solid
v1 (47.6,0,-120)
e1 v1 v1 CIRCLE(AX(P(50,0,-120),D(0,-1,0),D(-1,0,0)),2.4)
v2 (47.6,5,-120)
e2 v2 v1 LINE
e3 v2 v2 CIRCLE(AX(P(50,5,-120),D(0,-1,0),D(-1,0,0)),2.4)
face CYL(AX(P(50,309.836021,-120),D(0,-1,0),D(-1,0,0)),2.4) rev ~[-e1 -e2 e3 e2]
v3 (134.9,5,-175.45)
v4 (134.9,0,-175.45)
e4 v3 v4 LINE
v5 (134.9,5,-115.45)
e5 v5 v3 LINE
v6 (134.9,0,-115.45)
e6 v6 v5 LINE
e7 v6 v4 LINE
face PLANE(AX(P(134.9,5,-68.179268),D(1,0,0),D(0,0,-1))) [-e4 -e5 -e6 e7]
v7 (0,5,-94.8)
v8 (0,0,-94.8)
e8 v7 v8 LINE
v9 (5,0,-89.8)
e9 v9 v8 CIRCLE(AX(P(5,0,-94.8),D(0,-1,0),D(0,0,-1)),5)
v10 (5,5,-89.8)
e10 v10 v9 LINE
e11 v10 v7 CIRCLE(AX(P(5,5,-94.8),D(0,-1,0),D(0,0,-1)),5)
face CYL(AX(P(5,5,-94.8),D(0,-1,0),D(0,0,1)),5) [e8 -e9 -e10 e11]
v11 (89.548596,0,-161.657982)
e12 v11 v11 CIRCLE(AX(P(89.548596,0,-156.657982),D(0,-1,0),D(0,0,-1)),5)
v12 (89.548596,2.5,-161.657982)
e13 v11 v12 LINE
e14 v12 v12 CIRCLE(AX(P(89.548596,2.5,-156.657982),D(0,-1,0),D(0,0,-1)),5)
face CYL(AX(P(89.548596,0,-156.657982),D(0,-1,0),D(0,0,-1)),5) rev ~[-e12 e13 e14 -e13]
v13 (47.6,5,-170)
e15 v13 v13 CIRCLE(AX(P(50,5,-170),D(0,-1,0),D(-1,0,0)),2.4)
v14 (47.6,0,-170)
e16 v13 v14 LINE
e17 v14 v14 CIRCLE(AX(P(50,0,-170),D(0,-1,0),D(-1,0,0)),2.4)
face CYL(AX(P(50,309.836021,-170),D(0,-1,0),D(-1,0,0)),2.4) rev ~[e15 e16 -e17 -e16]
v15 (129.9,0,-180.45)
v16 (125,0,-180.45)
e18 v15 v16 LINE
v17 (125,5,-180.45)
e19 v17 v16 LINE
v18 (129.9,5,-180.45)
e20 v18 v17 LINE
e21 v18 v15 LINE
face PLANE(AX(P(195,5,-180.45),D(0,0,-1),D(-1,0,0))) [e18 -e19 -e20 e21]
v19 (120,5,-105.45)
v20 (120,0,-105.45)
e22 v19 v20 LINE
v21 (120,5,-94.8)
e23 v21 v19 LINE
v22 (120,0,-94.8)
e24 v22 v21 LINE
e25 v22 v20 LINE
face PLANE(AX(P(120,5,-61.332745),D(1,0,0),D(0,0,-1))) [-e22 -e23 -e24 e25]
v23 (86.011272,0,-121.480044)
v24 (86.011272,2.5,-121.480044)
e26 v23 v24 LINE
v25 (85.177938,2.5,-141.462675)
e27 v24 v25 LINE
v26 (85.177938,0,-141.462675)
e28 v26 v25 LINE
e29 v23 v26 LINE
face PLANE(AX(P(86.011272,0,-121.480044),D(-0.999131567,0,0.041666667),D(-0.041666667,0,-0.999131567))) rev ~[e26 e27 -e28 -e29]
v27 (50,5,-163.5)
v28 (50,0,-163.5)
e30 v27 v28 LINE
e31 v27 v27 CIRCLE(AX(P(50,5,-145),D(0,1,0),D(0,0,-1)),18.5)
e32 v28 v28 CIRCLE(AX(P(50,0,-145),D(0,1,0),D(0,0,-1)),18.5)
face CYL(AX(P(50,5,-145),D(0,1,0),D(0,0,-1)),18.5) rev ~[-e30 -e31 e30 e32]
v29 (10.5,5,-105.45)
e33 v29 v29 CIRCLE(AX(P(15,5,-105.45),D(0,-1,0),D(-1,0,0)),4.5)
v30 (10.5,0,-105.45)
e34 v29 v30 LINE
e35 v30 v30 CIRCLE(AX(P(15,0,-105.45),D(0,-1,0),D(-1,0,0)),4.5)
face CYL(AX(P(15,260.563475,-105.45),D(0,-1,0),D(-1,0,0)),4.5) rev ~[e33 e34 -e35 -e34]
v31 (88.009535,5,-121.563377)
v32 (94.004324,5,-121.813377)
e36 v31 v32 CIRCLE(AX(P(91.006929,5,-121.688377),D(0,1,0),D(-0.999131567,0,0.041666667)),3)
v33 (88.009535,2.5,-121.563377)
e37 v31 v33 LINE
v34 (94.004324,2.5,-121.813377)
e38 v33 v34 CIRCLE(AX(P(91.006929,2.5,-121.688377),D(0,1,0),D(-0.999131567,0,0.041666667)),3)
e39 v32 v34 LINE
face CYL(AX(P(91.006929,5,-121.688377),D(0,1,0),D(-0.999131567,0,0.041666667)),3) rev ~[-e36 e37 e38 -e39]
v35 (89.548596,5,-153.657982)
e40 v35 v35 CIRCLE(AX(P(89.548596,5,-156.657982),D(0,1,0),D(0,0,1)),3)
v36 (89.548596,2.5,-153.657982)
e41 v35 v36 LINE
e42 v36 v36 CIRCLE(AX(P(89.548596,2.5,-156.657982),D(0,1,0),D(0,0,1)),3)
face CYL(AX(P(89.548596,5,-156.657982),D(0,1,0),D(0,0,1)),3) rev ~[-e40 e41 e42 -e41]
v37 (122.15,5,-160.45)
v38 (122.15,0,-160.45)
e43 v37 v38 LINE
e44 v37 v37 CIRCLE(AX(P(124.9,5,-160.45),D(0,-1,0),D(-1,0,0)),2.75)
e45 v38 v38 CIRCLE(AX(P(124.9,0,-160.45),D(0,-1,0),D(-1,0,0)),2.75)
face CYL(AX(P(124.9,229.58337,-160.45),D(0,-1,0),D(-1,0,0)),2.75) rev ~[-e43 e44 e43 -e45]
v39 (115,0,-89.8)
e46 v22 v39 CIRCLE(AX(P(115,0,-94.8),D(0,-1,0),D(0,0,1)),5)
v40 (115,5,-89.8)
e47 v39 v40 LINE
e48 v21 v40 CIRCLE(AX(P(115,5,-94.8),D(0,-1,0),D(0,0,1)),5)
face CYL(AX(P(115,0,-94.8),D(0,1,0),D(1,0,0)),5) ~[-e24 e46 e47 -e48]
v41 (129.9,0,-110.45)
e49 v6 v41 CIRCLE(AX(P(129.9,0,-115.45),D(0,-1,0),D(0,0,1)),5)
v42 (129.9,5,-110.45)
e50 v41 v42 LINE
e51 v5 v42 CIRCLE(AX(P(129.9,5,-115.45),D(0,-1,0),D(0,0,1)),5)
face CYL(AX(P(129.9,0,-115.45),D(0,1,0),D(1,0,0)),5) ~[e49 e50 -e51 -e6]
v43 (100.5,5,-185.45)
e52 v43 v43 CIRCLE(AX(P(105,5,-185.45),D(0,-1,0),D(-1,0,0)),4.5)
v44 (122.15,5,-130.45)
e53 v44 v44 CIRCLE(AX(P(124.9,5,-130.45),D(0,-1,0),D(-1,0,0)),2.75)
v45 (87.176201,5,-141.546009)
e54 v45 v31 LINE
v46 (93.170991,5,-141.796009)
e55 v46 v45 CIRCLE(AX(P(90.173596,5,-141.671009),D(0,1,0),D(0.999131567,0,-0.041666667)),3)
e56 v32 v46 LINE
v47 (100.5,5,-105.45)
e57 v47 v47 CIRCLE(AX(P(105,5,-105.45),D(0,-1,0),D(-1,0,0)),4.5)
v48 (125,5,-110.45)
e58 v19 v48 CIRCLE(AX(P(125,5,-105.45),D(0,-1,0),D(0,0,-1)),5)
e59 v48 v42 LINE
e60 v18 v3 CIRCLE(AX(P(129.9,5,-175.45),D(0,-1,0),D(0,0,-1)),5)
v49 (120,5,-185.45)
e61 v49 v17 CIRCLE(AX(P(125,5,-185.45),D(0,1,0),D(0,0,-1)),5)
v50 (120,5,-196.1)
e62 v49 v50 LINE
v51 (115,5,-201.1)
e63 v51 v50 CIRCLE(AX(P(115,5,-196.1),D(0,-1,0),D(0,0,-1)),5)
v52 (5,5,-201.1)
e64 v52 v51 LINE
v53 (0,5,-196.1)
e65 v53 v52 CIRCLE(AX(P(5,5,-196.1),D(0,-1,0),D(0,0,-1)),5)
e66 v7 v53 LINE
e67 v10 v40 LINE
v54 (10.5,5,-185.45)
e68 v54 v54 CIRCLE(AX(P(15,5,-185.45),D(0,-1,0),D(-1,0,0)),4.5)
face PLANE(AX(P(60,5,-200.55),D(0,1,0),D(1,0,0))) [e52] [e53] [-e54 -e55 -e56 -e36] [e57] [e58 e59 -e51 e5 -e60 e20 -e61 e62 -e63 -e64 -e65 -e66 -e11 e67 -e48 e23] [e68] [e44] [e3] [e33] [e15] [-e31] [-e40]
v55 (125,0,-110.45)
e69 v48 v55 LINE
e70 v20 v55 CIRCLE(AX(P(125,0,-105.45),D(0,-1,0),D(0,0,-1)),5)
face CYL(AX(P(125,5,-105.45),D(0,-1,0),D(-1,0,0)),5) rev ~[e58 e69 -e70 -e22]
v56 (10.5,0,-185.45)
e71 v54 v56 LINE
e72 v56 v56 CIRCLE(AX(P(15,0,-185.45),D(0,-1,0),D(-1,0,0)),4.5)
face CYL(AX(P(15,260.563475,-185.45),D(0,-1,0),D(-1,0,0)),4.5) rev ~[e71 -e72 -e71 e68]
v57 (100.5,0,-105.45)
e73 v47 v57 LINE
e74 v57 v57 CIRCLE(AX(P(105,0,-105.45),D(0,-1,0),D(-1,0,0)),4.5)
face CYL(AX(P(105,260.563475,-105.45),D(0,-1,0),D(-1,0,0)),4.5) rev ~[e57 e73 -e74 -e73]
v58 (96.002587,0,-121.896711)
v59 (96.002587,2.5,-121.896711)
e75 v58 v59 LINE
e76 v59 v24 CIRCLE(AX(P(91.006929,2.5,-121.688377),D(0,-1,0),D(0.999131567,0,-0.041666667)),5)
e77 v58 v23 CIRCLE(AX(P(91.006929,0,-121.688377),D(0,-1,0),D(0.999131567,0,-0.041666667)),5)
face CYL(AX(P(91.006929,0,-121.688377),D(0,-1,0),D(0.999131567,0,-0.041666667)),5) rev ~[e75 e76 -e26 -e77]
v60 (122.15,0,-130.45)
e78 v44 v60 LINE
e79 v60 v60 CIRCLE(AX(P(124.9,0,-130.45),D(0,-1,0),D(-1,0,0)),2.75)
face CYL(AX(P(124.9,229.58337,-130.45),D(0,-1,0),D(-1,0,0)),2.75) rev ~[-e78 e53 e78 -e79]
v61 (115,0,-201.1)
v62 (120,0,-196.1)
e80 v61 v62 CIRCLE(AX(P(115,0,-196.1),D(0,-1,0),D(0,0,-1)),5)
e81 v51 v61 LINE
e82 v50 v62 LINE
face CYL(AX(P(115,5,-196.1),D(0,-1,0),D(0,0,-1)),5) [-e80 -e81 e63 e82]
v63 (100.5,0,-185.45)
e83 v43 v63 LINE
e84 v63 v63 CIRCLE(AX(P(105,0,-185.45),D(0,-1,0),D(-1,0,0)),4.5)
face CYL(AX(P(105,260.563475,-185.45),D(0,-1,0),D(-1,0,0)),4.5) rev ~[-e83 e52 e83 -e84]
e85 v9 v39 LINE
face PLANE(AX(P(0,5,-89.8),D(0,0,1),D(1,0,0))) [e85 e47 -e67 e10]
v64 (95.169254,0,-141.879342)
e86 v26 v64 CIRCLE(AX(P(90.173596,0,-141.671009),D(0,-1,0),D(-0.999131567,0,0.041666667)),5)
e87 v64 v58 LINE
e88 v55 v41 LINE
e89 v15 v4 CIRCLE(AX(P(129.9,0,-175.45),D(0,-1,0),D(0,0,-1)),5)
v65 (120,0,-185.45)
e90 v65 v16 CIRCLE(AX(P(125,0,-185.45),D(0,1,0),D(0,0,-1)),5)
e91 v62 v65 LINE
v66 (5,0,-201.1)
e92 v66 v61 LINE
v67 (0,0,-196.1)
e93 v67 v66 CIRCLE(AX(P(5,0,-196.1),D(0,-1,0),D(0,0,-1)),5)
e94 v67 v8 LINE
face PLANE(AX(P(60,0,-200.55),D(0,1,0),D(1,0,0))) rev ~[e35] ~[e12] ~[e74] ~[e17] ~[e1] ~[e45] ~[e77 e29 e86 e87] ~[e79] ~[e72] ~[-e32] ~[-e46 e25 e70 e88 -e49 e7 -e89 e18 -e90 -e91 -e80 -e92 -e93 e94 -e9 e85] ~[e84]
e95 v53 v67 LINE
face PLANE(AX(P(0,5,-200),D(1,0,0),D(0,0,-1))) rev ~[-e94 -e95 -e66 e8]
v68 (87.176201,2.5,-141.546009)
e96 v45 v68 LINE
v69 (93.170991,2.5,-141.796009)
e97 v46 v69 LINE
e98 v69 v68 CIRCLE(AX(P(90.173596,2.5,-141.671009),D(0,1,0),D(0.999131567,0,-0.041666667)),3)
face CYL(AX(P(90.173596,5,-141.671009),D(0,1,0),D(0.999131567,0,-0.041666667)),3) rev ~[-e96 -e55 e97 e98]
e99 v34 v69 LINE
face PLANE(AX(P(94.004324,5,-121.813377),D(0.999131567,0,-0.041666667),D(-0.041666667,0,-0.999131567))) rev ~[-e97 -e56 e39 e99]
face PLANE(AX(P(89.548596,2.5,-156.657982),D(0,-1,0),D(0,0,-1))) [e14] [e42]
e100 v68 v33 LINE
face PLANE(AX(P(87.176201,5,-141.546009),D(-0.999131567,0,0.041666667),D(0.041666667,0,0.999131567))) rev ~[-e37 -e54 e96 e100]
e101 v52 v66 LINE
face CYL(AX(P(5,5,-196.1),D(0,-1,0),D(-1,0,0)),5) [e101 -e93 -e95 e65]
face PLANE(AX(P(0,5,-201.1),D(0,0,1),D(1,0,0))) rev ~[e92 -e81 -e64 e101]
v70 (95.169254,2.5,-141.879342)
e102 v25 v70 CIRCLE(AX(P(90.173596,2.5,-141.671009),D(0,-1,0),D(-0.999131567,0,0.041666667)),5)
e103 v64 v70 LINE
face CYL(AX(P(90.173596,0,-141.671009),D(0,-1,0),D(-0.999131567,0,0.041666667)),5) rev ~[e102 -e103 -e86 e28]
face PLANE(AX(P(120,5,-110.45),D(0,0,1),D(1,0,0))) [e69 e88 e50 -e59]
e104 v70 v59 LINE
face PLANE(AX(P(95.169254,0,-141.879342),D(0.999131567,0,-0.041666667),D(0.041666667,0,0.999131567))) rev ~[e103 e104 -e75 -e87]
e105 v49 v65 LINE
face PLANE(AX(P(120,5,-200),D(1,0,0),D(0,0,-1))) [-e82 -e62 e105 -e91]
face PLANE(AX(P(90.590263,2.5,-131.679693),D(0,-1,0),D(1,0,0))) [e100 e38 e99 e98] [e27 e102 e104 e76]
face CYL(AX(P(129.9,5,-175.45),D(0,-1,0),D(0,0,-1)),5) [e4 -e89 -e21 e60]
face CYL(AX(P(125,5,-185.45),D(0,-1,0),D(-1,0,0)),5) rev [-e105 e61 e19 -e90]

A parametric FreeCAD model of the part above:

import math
import FreeCAD as App
import Part
import Sketcher
Q = App.Units.Quantity


def edges_at(feature, points):
    """Names of the edges that pass closest to the given points."""
    edges = feature.Shape.Edges
    near = lambda p: min(range(len(edges)), key=lambda i: edges[i].distToShape(Part.Vertex(*p))[0])
    return sorted({f"Edge{near(p) + 1}" for p in points})

doc = App.newDocument("Part")
body = doc.addObject("PartDesign::Body", "Body")

# Sketch on XZ plane
sketch1 = body.newObject("Sketcher::SketchObject", "Sketch")
sketch1.AttachmentSupport = (doc.getObject("XZ_Plane"), [""])
sketch1.MapMode = "FlatFace"
sketch1.addGeometry(Part.LineSegment(App.Vector(0, -200, 0), App.Vector(0, 0, 0)), False)
sketch1.addGeometry(Part.LineSegment(App.Vector(0, 0, 0), App.Vector(230, 0, 0)), False)
sketch1.addGeometry(Part.LineSegment(App.Vector(230, 0, 0), App.Vector(230, -200, 0)), False)
sketch1.addGeometry(Part.LineSegment(App.Vector(230, -200, 0), App.Vector(0, -200, 0)), False)
sketch1.addConstraint(Sketcher.Constraint("Coincident", 0, 2, 1, 1))
sketch1.addConstraint(Sketcher.Constraint("Coincident", 1, 2, 2, 1))
sketch1.addConstraint(Sketcher.Constraint("Coincident", 2, 2, 3, 1))
sketch1.addConstraint(Sketcher.Constraint("Coincident", 3, 2, 0, 1))
sketch1.addConstraint(Sketcher.Constraint("Vertical", 0))
sketch1.addConstraint(Sketcher.Constraint("Horizontal", 1))
sketch1.addConstraint(Sketcher.Constraint("Vertical", 2))
sketch1.addConstraint(Sketcher.Constraint("Horizontal", 3))
sketch1.addConstraint(Sketcher.Constraint("Coincident", 0, 2, -1, 1))
sketch1.addConstraint(Sketcher.Constraint("DistanceX", 1, 1, 1, 2, Q("230 mm")))
sketch1.addConstraint(Sketcher.Constraint("DistanceY", 0, 1, 0, 2, Q("200 mm")))
pad1 = body.newObject("PartDesign::Pad", "Pad")
pad1.Profile = sketch1
pad1.Length = 5
pad1.Reversed = True

# Sketch on XZ plane
sketch2 = body.newObject("Sketcher::SketchObject", "Sketch001")
sketch2.AttachmentSupport = (doc.getObject("XZ_Plane"), [""])
sketch2.MapMode = "FlatFace"
sketch2.AttachmentOffset = App.Placement(App.Vector(0, 0, -5), App.Rotation())
sketch2.addGeometry(Part.Circle(App.Vector(50, -60, 0), App.Vector(0, 0, 1), 15), False)
sketch2.addGeometry(Part.Circle(App.Vector(168.7, -42.5, 0), App.Vector(0, 0, 1), 14), False)
sketch2.addGeometry(Part.Circle(App.Vector(169.9, -150, 0), App.Vector(0, 0, 1), 10), False)
sketch2.addGeometry(Part.Circle(App.Vector(50, -145, 0), App.Vector(0, 0, 1), 18.5), False)
sketch2.addGeometry(Part.Circle(App.Vector(89.5, -156.7, 0), App.Vector(0, 0, 1), 3), False)
sketch2.addGeometry(Part.LineSegment(App.Vector(98.5, -32.6, 0), App.Vector(104.4, -72.2, 0)), False)
sketch2.addGeometry(Part.ArcOfCircle(Part.Circle(App.Vector(102.4, -72.5, 0), App.Vector(0, 0, 1), 2), math.radians(-172), math.radians(8)), False)
sketch2.addGeometry(Part.LineSegment(App.Vector(100.4, -72.8, 0), App.Vector(94.6, -33.2, 0)), False)
sketch2.addGeometry(Part.ArcOfCircle(Part.Circle(App.Vector(96.5, -32.9, 0), App.Vector(0, 0, 1), 2), math.radians(8), math.radians(188)), False)
sketch2.addGeometry(Part.LineSegment(App.Vector(94, -121.8, 0), App.Vector(93.2, -141.8, 0)), False)
sketch2.addGeometry(Part.ArcOfCircle(Part.Circle(App.Vector(90.2, -141.7, 0), App.Vector(0, 0, 1), 3), math.radians(178), math.radians(358)), False)
sketch2.addGeometry(Part.LineSegment(App.Vector(87.2, -141.5, 0), App.Vector(88, -121.6, 0)), False)
sketch2.addGeometry(Part.ArcOfCircle(Part.Circle(App.Vector(91, -121.7, 0), App.Vector(0, 0, 1), 3), math.radians(-2), math.radians(178)), False)
sketch2.addConstraint(Sketcher.Constraint("Tangent", 5, 2, 6, 2))
sketch2.addConstraint(Sketcher.Constraint("Tangent", 6, 1, 7, 1))
sketch2.addConstraint(Sketcher.Constraint("Tangent", 7, 2, 8, 2))
sketch2.addConstraint(Sketcher.Constraint("Tangent", 8, 1, 5, 1))
sketch2.addConstraint(Sketcher.Constraint("Tangent", 9, 2, 10, 2))
sketch2.addConstraint(Sketcher.Constraint("Tangent", 10, 1, 11, 1))
sketch2.addConstraint(Sketcher.Constraint("Tangent", 11, 2, 12, 2))
sketch2.addConstraint(Sketcher.Constraint("Tangent", 12, 1, 9, 1))
sketch2.addConstraint(Sketcher.Constraint("Equal", 6, 8))
sketch2.addConstraint(Sketcher.Constraint("Equal", 4, 10))
sketch2.addConstraint(Sketcher.Constraint("Equal", 10, 12))
sketch2.addConstraint(Sketcher.Constraint("Vertical", 0, 3, 3, 3))
sketch2.addConstraint(Sketcher.Constraint("Diameter", 0, Q("30 mm")))
sketch2.addConstraint(Sketcher.Constraint("Diameter", 1, Q("28 mm")))
sketch2.addConstraint(Sketcher.Constraint("Diameter", 2, Q("20 mm")))
sketch2.addConstraint(Sketcher.Constraint("Diameter", 3, Q("37 mm")))
sketch2.addConstraint(Sketcher.Constraint("Diameter", 4, Q("6 mm")))
sketch2.addConstraint(Sketcher.Constraint("Radius", 6, Q("2 mm")))
sketch2.addConstraint(Sketcher.Constraint("Distance", 5, Q("40 mm")))
sketch2.addConstraint(Sketcher.Constraint("Distance", 9, Q("20 mm")))
sketch2.addConstraint(Sketcher.Constraint("DistanceX", -1, 1, 0, 3, Q("50 mm")))
sketch2.addConstraint(Sketcher.Constraint("DistanceY", 0, 3, -1, 1, Q("60 mm")))
sketch2.addConstraint(Sketcher.Constraint("DistanceY", 2, 3, -1, 1, Q("150 mm")))
sketch2.addConstraint(Sketcher.Constraint("DistanceY", 3, 3, -1, 1, Q("145 mm")))
sketch2.addConstraint(Sketcher.Constraint("DistanceY", 1, 3, -1, 1, Q("42.5 mm")))
sketch2.addConstraint(Sketcher.Constraint("DistanceY", 9, 2, 10, 1, Q("0.25 mm")))
sketch2.addConstraint(Sketcher.Constraint("DistanceX", 4, 3, 10, 3, Q("0.625 mm")))
sketch2.addConstraint(Sketcher.Constraint("DistanceX", -1, 1, 1, 3, Q("168.717101 mm")))
sketch2.addConstraint(Sketcher.Constraint("DistanceX", -1, 1, 10, 1, Q("87.176201 mm")))
sketch2.addConstraint(Sketcher.Constraint("DistanceY", 5, 2, 8, 3, Q("39.2807 mm")))
sketch2.addConstraint(Sketcher.Constraint("DistanceX", -1, 1, 2, 3, Q("169.895788 mm")))
sketch2.addConstraint(Sketcher.Constraint("DistanceX", -1, 1, 8, 3, Q("96.548792 mm")))
sketch2.addConstraint(Sketcher.Constraint("DistanceY", 8, 3, -1, 1, Q("32.92215 mm")))
sketch2.addConstraint(Sketcher.Constraint("DistanceY", 10, 3, -1, 1, Q("141.671009 mm")))
sketch2.addConstraint(Sketcher.Constraint("DistanceY", 4, 3, -1, 1, Q("156.657982 mm")))
pocket1 = body.newObject("PartDesign::Pocket", "Pocket")
pocket1.Profile = sketch2
pocket1.Type = "ThroughAll"
pocket1.Reversed = True

# Sketch on XZ plane
sketch3 = body.newObject("Sketcher::SketchObject", "Sketch002")
sketch3.AttachmentSupport = (doc.getObject("XZ_Plane"), [""])
sketch3.MapMode = "FlatFace"
sketch3.AttachmentOffset = App.Placement(App.Vector(0, 0, -5), App.Rotation())
sketch3.addGeometry(Part.Circle(App.Vector(50, -120, 0), App.Vector(0, 0, 1), 2.4), False)
sketch3.addGeometry(Part.Circle(App.Vector(50, -32.5, 0), App.Vector(0, 0, 1), 2.4), False)
sketch3.addGeometry(Part.Circle(App.Vector(168.7, -61, 0), App.Vector(0, 0, 1), 2.4), False)
sketch3.addGeometry(Part.Circle(App.Vector(168.7, -24, 0), App.Vector(0, 0, 1), 2.4), False)
sketch3.addGeometry(Part.Circle(App.Vector(187.2, -42.5, 0), App.Vector(0, 0, 1), 2.4), False)
sketch3.addGeometry(Part.Circle(App.Vector(150.2, -42.5, 0), App.Vector(0, 0, 1), 2.4), False)
sketch3.addGeometry(Part.Circle(App.Vector(50, -170, 0), App.Vector(0, 0, 1), 2.4), False)
sketch3.addConstraint(Sketcher.Constraint("Equal", 0, 1))
sketch3.addConstraint(Sketcher.Constraint("Equal", 1, 2))
sketch3.addConstraint(Sketcher.Constraint("Equal", 2, 3))
sketch3.addConstraint(Sketcher.Constraint("Equal", 3, 4))
sketch3.addConstraint(Sketcher.Constraint("Equal", 4, 5))
sketch3.addConstraint(Sketcher.Constraint("Equal", 5, 6))
sketch3.addConstraint(Sketcher.Constraint("Horizontal", 4, 3, 5, 3))
sketch3.addConstraint(Sketcher.Constraint("Vertical", 0, 3, 1, 3))
sketch3.addConstraint(Sketcher.Constraint("Vertical", 2, 3, 3, 3))
sketch3.addConstraint(Sketcher.Constraint("Vertical", 1, 3, 6, 3))
sketch3.addConstraint(Sketcher.Constraint("Diameter", 0, Q("4.8 mm")))
sketch3.addConstraint(Sketcher.Constraint("DistanceX", -1, 1, 0, 3, Q("50 mm")))
sketch3.addConstraint(Sketcher.Constraint("DistanceY", 0, 3, -1, 1, Q("120 mm")))
sketch3.addConstraint(Sketcher.Constraint("DistanceY", 2, 3, -1, 1, Q("61 mm")))
sketch3.addConstraint(Sketcher.Constraint("DistanceY", 3, 3, -1, 1, Q("24 mm")))
sketch3.addConstraint(Sketcher.Constraint("DistanceY", 6, 3, -1, 1, Q("170 mm")))
sketch3.addConstraint(Sketcher.Constraint("DistanceY", 4, 3, 1, 3, Q("10 mm")))
sketch3.addConstraint(Sketcher.Constraint("DistanceX", 5, 3, 4, 3, Q("37 mm")))
sketch3.addConstraint(Sketcher.Constraint("DistanceY", 1, 3, -1, 1, Q("32.5 mm")))
sketch3.addConstraint(Sketcher.Constraint("DistanceX", 2, 3, 4, 3, Q("18.5 mm")))
sketch3.addConstraint(Sketcher.Constraint("DistanceX", -1, 1, 2, 3, Q("168.717101 mm")))
doc.recompute()
hole = body.newObject("PartDesign::Hole", "Hole")
hole.Profile = sketch3
hole.ThreadType = "None"
hole.Diameter = 4.8
hole.DepthType = "ThroughAll"
hole.Reversed = True

# Sketch on XZ plane
sketch4 = body.newObject("Sketcher::SketchObject", "Sketch003")
sketch4.AttachmentSupport = (doc.getObject("XZ_Plane"), [""])
sketch4.MapMode = "FlatFace"
sketch4.AttachmentOffset = App.Placement(App.Vector(0, 0, -5), App.Rotation())
sketch4.addGeometry(Part.LineSegment(App.Vector(20, -10, 0), App.Vector(20, -5, 0)), False)
sketch4.addGeometry(Part.LineSegment(App.Vector(20, -5, 0), App.Vector(40, -5, 0)), False)
sketch4.addGeometry(Part.LineSegment(App.Vector(40, -5, 0), App.Vector(40, -10, 0)), False)
sketch4.addGeometry(Part.LineSegment(App.Vector(40, -10, 0), App.Vector(20, -10, 0)), False)
sketch4.addGeometry(Part.LineSegment(App.Vector(60, -10, 0), App.Vector(60, -5, 0)), False)
sketch4.addGeometry(Part.LineSegment(App.Vector(60, -5, 0), App.Vector(80, -5, 0)), False)
sketch4.addGeometry(Part.LineSegment(App.Vector(80, -5, 0), App.Vector(80, -10, 0)), False)
sketch4.addGeometry(Part.LineSegment(App.Vector(80, -10, 0), App.Vector(60, -10, 0)), False)
sketch4.addGeometry(Part.LineSegment(App.Vector(100, -10, 0), App.Vector(100, -5, 0)), False)
sketch4.addGeometry(Part.LineSegment(App.Vector(100, -5, 0), App.Vector(120, -5, 0)), False)
sketch4.addGeometry(Part.LineSegment(App.Vector(120, -5, 0), App.Vector(120, -10, 0)), False)
sketch4.addGeometry(Part.LineSegment(App.Vector(120, -10, 0), App.Vector(100, -10, 0)), False)
sketch4.addGeometry(Part.LineSegment(App.Vector(140, -10, 0), App.Vector(140, -5, 0)), False)
sketch4.addGeometry(Part.LineSegment(App.Vector(140, -5, 0), App.Vector(160, -5, 0)), False)
sketch4.addGeometry(Part.LineSegment(App.Vector(160, -5, 0), App.Vector(160, -10, 0)), False)
sketch4.addGeometry(Part.LineSegment(App.Vector(160, -10, 0), App.Vector(140, -10, 0)), False)
sketch4.addGeometry(Part.LineSegment(App.Vector(180, -10, 0), App.Vector(180, -5, 0)), False)
sketch4.addGeometry(Part.LineSegment(App.Vector(180, -5, 0), App.Vector(200, -5, 0)), False)
sketch4.addGeometry(Part.LineSegment(App.Vector(200, -5, 0), App.Vector(200, -10, 0)), False)
sketch4.addGeometry(Part.LineSegment(App.Vector(200, -10, 0), App.Vector(180, -10, 0)), False)
sketch4.addConstraint(Sketcher.Constraint("Coincident", 0, 2, 1, 1))
sketch4.addConstraint(Sketcher.Constraint("Coincident", 1, 2, 2, 1))
sketch4.addConstraint(Sketcher.Constraint("Coincident", 2, 2, 3, 1))
sketch4.addConstraint(Sketcher.Constraint("Coincident", 3, 2, 0, 1))
sketch4.addConstraint(Sketcher.Constraint("Coincident", 4, 2, 5, 1))
sketch4.addConstraint(Sketcher.Constraint("Coincident", 5, 2, 6, 1))
sketch4.addConstraint(Sketcher.Constraint("Coincident", 6, 2, 7, 1))
sketch4.addConstraint(Sketcher.Constraint("Coincident", 7, 2, 4, 1))
sketch4.addConstraint(Sketcher.Constraint("Coincident", 8, 2, 9, 1))
sketch4.addConstraint(Sketcher.Constraint("Coincident", 9, 2, 10, 1))
sketch4.addConstraint(Sketcher.Constraint("Coincident", 10, 2, 11, 1))
sketch4.addConstraint(Sketcher.Constraint("Coincident", 11, 2, 8, 1))
sketch4.addConstraint(Sketcher.Constraint("Coincident", 12, 2, 13, 1))
sketch4.addConstraint(Sketcher.Constraint("Coincident", 13, 2, 14, 1))
sketch4.addConstraint(Sketcher.Constraint("Coincident", 14, 2, 15, 1))
sketch4.addConstraint(Sketcher.Constraint("Coincident", 15, 2, 12, 1))
sketch4.addConstraint(Sketcher.Constraint("Coincident", 16, 2, 17, 1))
sketch4.addConstraint(Sketcher.Constraint("Coincident", 17, 2, 18, 1))
sketch4.addConstraint(Sketcher.Constraint("Coincident", 18, 2, 19, 1))
sketch4.addConstraint(Sketcher.Constraint("Coincident", 19, 2, 16, 1))
sketch4.addConstraint(Sketcher.Constraint("Vertical", 0))
sketch4.addConstraint(Sketcher.Constraint("Horizontal", 1))
sketch4.addConstraint(Sketcher.Constraint("Vertical", 2))
sketch4.addConstraint(Sketcher.Constraint("Horizontal", 3))
sketch4.addConstraint(Sketcher.Constraint("Vertical", 4))
sketch4.addConstraint(Sketcher.Constraint("Horizontal", 5))
sketch4.addConstraint(Sketcher.Constraint("Vertical", 6))
sketch4.addConstraint(Sketcher.Constraint("Horizontal", 7))
sketch4.addConstraint(Sketcher.Constraint("Vertical", 8))
sketch4.addConstraint(Sketcher.Constraint("Horizontal", 9))
sketch4.addConstraint(Sketcher.Constraint("Vertical", 10))
sketch4.addConstraint(Sketcher.Constraint("Horizontal", 11))
sketch4.addConstraint(Sketcher.Constraint("Vertical", 12))
sketch4.addConstraint(Sketcher.Constraint("Horizontal", 13))
sketch4.addConstraint(Sketcher.Constraint("Vertical", 14))
sketch4.addConstraint(Sketcher.Constraint("Horizontal", 15))
sketch4.addConstraint(Sketcher.Constraint("Vertical", 16))
sketch4.addConstraint(Sketcher.Constraint("Horizontal", 17))
sketch4.addConstraint(Sketcher.Constraint("Vertical", 18))
sketch4.addConstraint(Sketcher.Constraint("Horizontal", 19))
sketch4.addConstraint(Sketcher.Constraint("Horizontal", 1, 2, 4, 2))
sketch4.addConstraint(Sketcher.Constraint("Horizontal", 3, 2, 6, 2))
sketch4.addConstraint(Sketcher.Constraint("Horizontal", 5, 2, 8, 2))
sketch4.addConstraint(Sketcher.Constraint("Horizontal", 7, 2, 10, 2))
sketch4.addConstraint(Sketcher.Constraint("Horizontal", 9, 2, 12, 2))
sketch4.addConstraint(Sketcher.Constraint("Horizontal", 11, 2, 14, 2))
sketch4.addConstraint(Sketcher.Constraint("Horizontal", 13, 2, 16, 2))
sketch4.addConstraint(Sketcher.Constraint("Horizontal", 15, 2, 18, 2))
sketch4.addConstraint(Sketcher.Constraint("Equal", 3, 5))
sketch4.addConstraint(Sketcher.Constraint("Equal", 7, 9))
sketch4.addConstraint(Sketcher.Constraint("Equal", 11, 13))
sketch4.addConstraint(Sketcher.Constraint("Equal", 15, 17))
sketch4.addConstraint(Sketcher.Constraint("DistanceX", 1, 1, 1, 2, Q("20 mm")))
sketch4.addConstraint(Sketcher.Constraint("DistanceY", 0, 1, 0, 2, Q("5 mm")))
sketch4.addConstraint(Sketcher.Constraint("DistanceX", -1, 1, 0, 2, Q("20 mm")))
sketch4.addConstraint(Sketcher.Constraint("DistanceY", 0, 2, -1, 1, Q("5 mm")))
sketch4.addConstraint(Sketcher.Constraint("DistanceX", -1, 1, 4, 2, Q("60 mm")))
sketch4.addConstraint(Sketcher.Constraint("DistanceX", -1, 1, 8, 2, Q("100 mm")))
sketch4.addConstraint(Sketcher.Constraint("DistanceX", -1, 1, 12, 2, Q("140 mm")))
sketch4.addConstraint(Sketcher.Constraint("DistanceX", -1, 1, 16, 2, Q("180 mm")))
pocket2 = body.newObject("PartDesign::Pocket", "Pocket001")
pocket2.Profile = sketch4
pocket2.Type = "ThroughAll"
pocket2.Reversed = True

# Sketch on XZ plane
sketch5 = body.newObject("Sketcher::SketchObject", "Sketch004")
sketch5.AttachmentSupport = (doc.getObject("XZ_Plane"), [""])
sketch5.MapMode = "FlatFace"
sketch5.AttachmentOffset = App.Placement(App.Vector(0, 0, -5), App.Rotation())
sketch5.addGeometry(Part.LineSegment(App.Vector(0, -90, 0), App.Vector(0, 0, 0)), False)
sketch5.addGeometry(Part.LineSegment(App.Vector(0, 0, 0), App.Vector(230, 0, 0)), False)
sketch5.addGeometry(Part.LineSegment(App.Vector(230, 0, 0), App.Vector(230, -90, 0)), False)
sketch5.addGeometry(Part.LineSegment(App.Vector(230, -90, 0), App.Vector(0, -90, 0)), False)
sketch5.addConstraint(Sketcher.Constraint("Coincident", 0, 2, 1, 1))
sketch5.addConstraint(Sketcher.Constraint("Coincident", 1, 2, 2, 1))
sketch5.addConstraint(Sketcher.Constraint("Coincident", 2, 2, 3, 1))
sketch5.addConstraint(Sketcher.Constraint("Coincident", 3, 2, 0, 1))
sketch5.addConstraint(Sketcher.Constraint("Vertical", 0))
sketch5.addConstraint(Sketcher.Constraint("Horizontal", 1))
sketch5.addConstraint(Sketcher.Constraint("Vertical", 2))
sketch5.addConstraint(Sketcher.Constraint("Horizontal", 3))
sketch5.addConstraint(Sketcher.Constraint("Coincident", 0, 2, -1, 1))
sketch5.addConstraint(Sketcher.Constraint("DistanceX", 1, 1, 1, 2, Q("230 mm")))
sketch5.addConstraint(Sketcher.Constraint("DistanceY", 0, 1, 0, 2, Q("89.8 mm")))
pocket3 = body.newObject("PartDesign::Pocket", "Pocket002")
pocket3.Profile = sketch5
pocket3.Type = "ThroughAll"
pocket3.Reversed = True

# Sketch on XZ plane
sketch6 = body.newObject("Sketcher::SketchObject", "Sketch005")
sketch6.AttachmentSupport = (doc.getObject("XZ_Plane"), [""])
sketch6.MapMode = "FlatFace"
sketch6.AttachmentOffset = App.Placement(App.Vector(0, 0, -5), App.Rotation())
sketch6.addGeometry(Part.LineSegment(App.Vector(0, -201.1, 0), App.Vector(0, -200, 0)), False)
sketch6.addGeometry(Part.LineSegment(App.Vector(0, -200, 0), App.Vector(120, -200, 0)), False)
sketch6.addGeometry(Part.LineSegment(App.Vector(120, -200, 0), App.Vector(120, -201.1, 0)), False)
sketch6.addGeometry(Part.LineSegment(App.Vector(120, -201.1, 0), App.Vector(0, -201.1, 0)), False)
sketch6.addConstraint(Sketcher.Constraint("Coincident", 0, 2, 1, 1))
sketch6.addConstraint(Sketcher.Constraint("Coincident", 1, 2, 2, 1))
sketch6.addConstraint(Sketcher.Constraint("Coincident", 2, 2, 3, 1))
sketch6.addConstraint(Sketcher.Constraint("Coincident", 3, 2, 0, 1))
sketch6.addConstraint(Sketcher.Constraint("Vertical", 0))
sketch6.addConstraint(Sketcher.Constraint("Horizontal", 1))
sketch6.addConstraint(Sketcher.Constraint("Vertical", 2))
sketch6.addConstraint(Sketcher.Constraint("Horizontal", 3))
sketch6.addConstraint(Sketcher.Constraint("PointOnObject", 0, 2, -2))
sketch6.addConstraint(Sketcher.Constraint("DistanceX", 1, 1, 1, 2, Q("120 mm")))
sketch6.addConstraint(Sketcher.Constraint("DistanceY", 0, 1, 0, 2, Q("1.1 mm")))
sketch6.addConstraint(Sketcher.Constraint("DistanceY", 0, 2, -1, 1, Q("200 mm")))
pad2 = body.newObject("PartDesign::Pad", "Pad001")
pad2.Profile = sketch6
pad2.Length = 5

# Sketch on XZ plane
sketch7 = body.newObject("Sketcher::SketchObject", "Sketch006")
sketch7.AttachmentSupport = (doc.getObject("XZ_Plane"), [""])
sketch7.MapMode = "FlatFace"
sketch7.AttachmentOffset = App.Placement(App.Vector(0, 0, -5), App.Rotation())
sketch7.addGeometry(Part.Circle(App.Vector(15, -185.4, 0), App.Vector(0, 0, 1), 4.5), False)
sketch7.addGeometry(Part.Circle(App.Vector(15, -105.5, 0), App.Vector(0, 0, 1), 4.5), False)
sketch7.addGeometry(Part.Circle(App.Vector(105, -105.5, 0), App.Vector(0, 0, 1), 4.5), False)
sketch7.addGeometry(Part.Circle(App.Vector(105, -185.4, 0), App.Vector(0, 0, 1), 4.5), False)
sketch7.addConstraint(Sketcher.Constraint("Equal", 0, 1))
sketch7.addConstraint(Sketcher.Constraint("Equal", 1, 2))
sketch7.addConstraint(Sketcher.Constraint("Equal", 2, 3))
sketch7.addConstraint(Sketcher.Constraint("Horizontal", 1, 3, 2, 3))
sketch7.addConstraint(Sketcher.Constraint("Horizontal", 0, 3, 3, 3))
sketch7.addConstraint(Sketcher.Constraint("Vertical", 0, 3, 1, 3))
sketch7.addConstraint(Sketcher.Constraint("Vertical", 2, 3, 3, 3))
sketch7.addConstraint(Sketcher.Constraint("Diameter", 0, Q("9 mm")))
sketch7.addConstraint(Sketcher.Constraint("DistanceX", -1, 1, 0, 3, Q("15 mm")))
sketch7.addConstraint(Sketcher.Constraint("DistanceX", -1, 1, 2, 3, Q("105 mm")))
sketch7.addConstraint(Sketcher.Constraint("DistanceY", 0, 3, 1, 3, Q("80 mm")))
sketch7.addConstraint(Sketcher.Constraint("DistanceY", 0, 3, -1, 1, Q("185.45 mm")))
doc.recompute()
hole2 = body.newObject("PartDesign::Hole", "Hole001")
hole2.Profile = sketch7
hole2.ThreadType = "None"
hole2.Diameter = 9
hole2.DepthType = "ThroughAll"
hole2.Reversed = True

# Sketch on XZ plane
sketch8 = body.newObject("Sketcher::SketchObject", "Sketch007")
sketch8.AttachmentSupport = (doc.getObject("XZ_Plane"), [""])
sketch8.MapMode = "FlatFace"
sketch8.AttachmentOffset = App.Placement(App.Vector(0, 0, -5), App.Rotation())
sketch8.addGeometry(Part.LineSegment(App.Vector(254, -226, 0), App.Vector(120, -226, 0)), False)
sketch8.addGeometry(Part.LineSegment(App.Vector(120, -226, 0), App.Vector(120, -180, 0)), False)
sketch8.addGeometry(Part.LineSegment(App.Vector(120, -180, 0), App.Vector(195, -180, 0)), False)
sketch8.addGeometry(Part.LineSegment(App.Vector(195, -180, 0), App.Vector(195, -110, 0)), False)
sketch8.addGeometry(Part.LineSegment(App.Vector(195, -110, 0), App.Vector(120, -110, 0)), False)
sketch8.addGeometry(Part.LineSegment(App.Vector(120, -110, 0), App.Vector(120, -61, 0)), False)
sketch8.addGeometry(Part.LineSegment(App.Vector(120, -61, 0), App.Vector(254, -61, 0)), False)
sketch8.addGeometry(Part.LineSegment(App.Vector(254, -61, 0), App.Vector(254, -226, 0)), False)
sketch8.addConstraint(Sketcher.Constraint("Coincident", 0, 2, 1, 1))
sketch8.addConstraint(Sketcher.Constraint("Coincident", 1, 2, 2, 1))
sketch8.addConstraint(Sketcher.Constraint("Coincident", 2, 2, 3, 1))
sketch8.addConstraint(Sketcher.Constraint("Coincident", 3, 2, 4, 1))
sketch8.addConstraint(Sketcher.Constraint("Coincident", 4, 2, 5, 1))
sketch8.addConstraint(Sketcher.Constraint("Coincident", 5, 2, 6, 1))
sketch8.addConstraint(Sketcher.Constraint("Coincident", 6, 2, 7, 1))
sketch8.addConstraint(Sketcher.Constraint("Coincident", 7, 2, 0, 1))
sketch8.addConstraint(Sketcher.Constraint("Horizontal", 0))
sketch8.addConstraint(Sketcher.Constraint("Vertical", 1))
sketch8.addConstraint(Sketcher.Constraint("Horizontal", 2))
sketch8.addConstraint(Sketcher.Constraint("Vertical", 3))
sketch8.addConstraint(Sketcher.Constraint("Horizontal", 4))
sketch8.addConstraint(Sketcher.Constraint("Vertical", 5))
sketch8.addConstraint(Sketcher.Constraint("Horizontal", 6))
sketch8.addConstraint(Sketcher.Constraint("Vertical", 7))
sketch8.addConstraint(Sketcher.Constraint("Vertical", 1, 2, 4, 2))
sketch8.addConstraint(Sketcher.Constraint("DistanceX", 2, 1, 2, 2, Q("75 mm")))
sketch8.addConstraint(Sketcher.Constraint("DistanceY", 3, 1, 3, 2, Q("70 mm")))
sketch8.addConstraint(Sketcher.Constraint("DistanceX", -1, 1, 0, 2, Q("120 mm")))
sketch8.addConstraint(Sketcher.Constraint("DistanceY", 1, 2, -1, 1, Q("180.45 mm")))
sketch8.addConstraint(Sketcher.Constraint("DistanceX", 0, 2, 0, 1, Q("134.21162 mm")))
sketch8.addConstraint(Sketcher.Constraint("DistanceY", 7, 2, 7, 1, Q("164.590829 mm")))
sketch8.addConstraint(Sketcher.Constraint("DistanceY", 1, 1, 1, 2, Q("45.473574 mm")))
pocket4 = body.newObject("PartDesign::Pocket", "Pocket003")
pocket4.Profile = sketch8
pocket4.Type = "ThroughAll"
pocket4.Reversed = True

# Sketch on XZ plane
sketch9 = body.newObject("Sketcher::SketchObject", "Sketch008")
sketch9.AttachmentSupport = (doc.getObject("XZ_Plane"), [""])
sketch9.MapMode = "FlatFace"
sketch9.AttachmentOffset = App.Placement(App.Vector(0, 0, -5), App.Rotation())
sketch9.addGeometry(Part.Circle(App.Vector(124.9, -160.4, 0), App.Vector(0, 0, 1), 2.8), False)
sketch9.addGeometry(Part.Circle(App.Vector(124.9, -130.4, 0), App.Vector(0, 0, 1), 2.8), False)
sketch9.addConstraint(Sketcher.Constraint("Equal", 0, 1))
sketch9.addConstraint(Sketcher.Constraint("Vertical", 0, 3, 1, 3))
sketch9.addConstraint(Sketcher.Constraint("Diameter", 0, Q("5.5 mm")))
sketch9.addConstraint(Sketcher.Constraint("DistanceY", 0, 3, 1, 3, Q("30 mm")))
sketch9.addConstraint(Sketcher.Constraint("DistanceX", -1, 1, 0, 3, Q("124.9 mm")))
sketch9.addConstraint(Sketcher.Constraint("DistanceY", 0, 3, -1, 1, Q("160.45 mm")))
doc.recompute()
hole3 = body.newObject("PartDesign::Hole", "Hole002")
hole3.Profile = sketch9
hole3.ThreadType = "None"
hole3.Diameter = 5.5
hole3.DepthType = "ThroughAll"
hole3.Reversed = True
doc.recompute()

fillet = body.newObject("PartDesign::Fillet", "Fillet")
fillet.Base = (hole3, edges_at(hole3, [(195, 2.5, -110.45), (195, 2.5, -180.45)]))
fillet.Radius = 30

# Sketch on XZ plane
sketch10 = body.newObject("Sketcher::SketchObject", "Sketch009")
sketch10.AttachmentSupport = (doc.getObject("XZ_Plane"), [""])
sketch10.MapMode = "FlatFace"
sketch10.AttachmentOffset = App.Placement(App.Vector(0, 0, -5), App.Rotation())
sketch10.addGeometry(Part.LineSegment(App.Vector(135, -220, 0), App.Vector(135, -68, 0)), False)
sketch10.addGeometry(Part.LineSegment(App.Vector(135, -68, 0), App.Vector(233, -68, 0)), False)
sketch10.addGeometry(Part.LineSegment(App.Vector(233, -68, 0), App.Vector(233, -220, 0)), False)
sketch10.addGeometry(Part.LineSegment(App.Vector(233, -220, 0), App.Vector(135, -220, 0)), False)
sketch10.addConstraint(Sketcher.Constraint("Coincident", 0, 2, 1, 1))
sketch10.addConstraint(Sketcher.Constraint("Coincident", 1, 2, 2, 1))
sketch10.addConstraint(Sketcher.Constraint("Coincident", 2, 2, 3, 1))
sketch10.addConstraint(Sketcher.Constraint("Coincident", 3, 2, 0, 1))
sketch10.addConstraint(Sketcher.Constraint("Vertical", 0))
sketch10.addConstraint(Sketcher.Constraint("Horizontal", 1))
sketch10.addConstraint(Sketcher.Constraint("Vertical", 2))
sketch10.addConstraint(Sketcher.Constraint("Horizontal", 3))
sketch10.addConstraint(Sketcher.Constraint("DistanceX", -1, 1, 0, 2, Q("134.9 mm")))
sketch10.addConstraint(Sketcher.Constraint("DistanceX", 1, 1, 1, 2, Q("97.742743 mm")))
sketch10.addConstraint(Sketcher.Constraint("DistanceY", 0, 1, 0, 2, Q("151.745417 mm")))
sketch10.addConstraint(Sketcher.Constraint("DistanceY", 0, 2, -1, 1, Q("68.179268 mm")))
pocket5 = body.newObject("PartDesign::Pocket", "Pocket004")
pocket5.Profile = sketch10
pocket5.Type = "ThroughAll"
pocket5.Reversed = True

# Sketch on XZ plane
sketch11 = body.newObject("Sketcher::SketchObject", "Sketch010")
sketch11.AttachmentSupport = (doc.getObject("XZ_Plane"), [""])
sketch11.MapMode = "FlatFace"
sketch11.addGeometry(Part.Circle(App.Vector(90, -157, 0), App.Vector(0, 0, 1), 5), False)
sketch11.addGeometry(Part.LineSegment(App.Vector(95, -142, 0), App.Vector(96, -122, 0)), False)
sketch11.addGeometry(Part.ArcOfCircle(Part.Circle(App.Vector(91, -122, 0), App.Vector(0, 0, 1), 5), math.radians(-2), math.radians(178)), False)
sketch11.addGeometry(Part.LineSegment(App.Vector(86, -121, 0), App.Vector(85, -141, 0)), False)
sketch11.addGeometry(Part.ArcOfCircle(Part.Circle(App.Vector(90, -142, 0), App.Vector(0, 0, 1), 5), math.radians(178), math.radians(358)), False)
sketch11.addConstraint(Sketcher.Constraint("Tangent", 1, 2, 2, 1))
sketch11.addConstraint(Sketcher.Constraint("Tangent", 2, 2, 3, 1))
sketch11.addConstraint(Sketcher.Constraint("Tangent", 3, 2, 4, 1))
sketch11.addConstraint(Sketcher.Constraint("Tangent", 4, 2, 1, 1))
sketch11.addConstraint(Sketcher.Constraint("Equal", 0, 2))
sketch11.addConstraint(Sketcher.Constraint("Equal", 2, 4))
sketch11.addConstraint(Sketcher.Constraint("Diameter", 0, Q("10 mm")))
sketch11.addConstraint(Sketcher.Constraint("Distance", 1, Q("20 mm")))
sketch11.addConstraint(Sketcher.Constraint("DistanceX", 0, 3, 4, 3, Q("0.625 mm")))
sketch11.addConstraint(Sketcher.Constraint("DistanceY", 4, 3, 1, 2, Q("19.774298 mm")))
sketch11.addConstraint(Sketcher.Constraint("DistanceX", -1, 1, 2, 3, Q("91.006929 mm")))
sketch11.addConstraint(Sketcher.Constraint("DistanceY", 4, 3, -1, 1, Q("141.671009 mm")))
sketch11.addConstraint(Sketcher.Constraint("DistanceY", 0, 3, 1, 2, Q("34.761272 mm")))
pocket6 = body.newObject("PartDesign::Pocket", "Pocket005")
pocket6.Profile = sketch11
pocket6.Length = 2.5
doc.recompute()

fillet2 = body.newObject("PartDesign::Fillet", "Fillet001")
fillet2.Base = (pocket6, edges_at(pocket6, [
    (0, 2.5, -89.8),
    (120, 2.5, -201.1),
    (0, 2.5, -201.1),
    (120, 2.5, -89.8),
    (120, 2.5, -180.45),
    (120, 2.5, -110.45),
    (134.9, 2.5, -180.45),
    (134.9, 2.5, -110.45),
]))
fillet2.Radius = 5

doc.recompute()
